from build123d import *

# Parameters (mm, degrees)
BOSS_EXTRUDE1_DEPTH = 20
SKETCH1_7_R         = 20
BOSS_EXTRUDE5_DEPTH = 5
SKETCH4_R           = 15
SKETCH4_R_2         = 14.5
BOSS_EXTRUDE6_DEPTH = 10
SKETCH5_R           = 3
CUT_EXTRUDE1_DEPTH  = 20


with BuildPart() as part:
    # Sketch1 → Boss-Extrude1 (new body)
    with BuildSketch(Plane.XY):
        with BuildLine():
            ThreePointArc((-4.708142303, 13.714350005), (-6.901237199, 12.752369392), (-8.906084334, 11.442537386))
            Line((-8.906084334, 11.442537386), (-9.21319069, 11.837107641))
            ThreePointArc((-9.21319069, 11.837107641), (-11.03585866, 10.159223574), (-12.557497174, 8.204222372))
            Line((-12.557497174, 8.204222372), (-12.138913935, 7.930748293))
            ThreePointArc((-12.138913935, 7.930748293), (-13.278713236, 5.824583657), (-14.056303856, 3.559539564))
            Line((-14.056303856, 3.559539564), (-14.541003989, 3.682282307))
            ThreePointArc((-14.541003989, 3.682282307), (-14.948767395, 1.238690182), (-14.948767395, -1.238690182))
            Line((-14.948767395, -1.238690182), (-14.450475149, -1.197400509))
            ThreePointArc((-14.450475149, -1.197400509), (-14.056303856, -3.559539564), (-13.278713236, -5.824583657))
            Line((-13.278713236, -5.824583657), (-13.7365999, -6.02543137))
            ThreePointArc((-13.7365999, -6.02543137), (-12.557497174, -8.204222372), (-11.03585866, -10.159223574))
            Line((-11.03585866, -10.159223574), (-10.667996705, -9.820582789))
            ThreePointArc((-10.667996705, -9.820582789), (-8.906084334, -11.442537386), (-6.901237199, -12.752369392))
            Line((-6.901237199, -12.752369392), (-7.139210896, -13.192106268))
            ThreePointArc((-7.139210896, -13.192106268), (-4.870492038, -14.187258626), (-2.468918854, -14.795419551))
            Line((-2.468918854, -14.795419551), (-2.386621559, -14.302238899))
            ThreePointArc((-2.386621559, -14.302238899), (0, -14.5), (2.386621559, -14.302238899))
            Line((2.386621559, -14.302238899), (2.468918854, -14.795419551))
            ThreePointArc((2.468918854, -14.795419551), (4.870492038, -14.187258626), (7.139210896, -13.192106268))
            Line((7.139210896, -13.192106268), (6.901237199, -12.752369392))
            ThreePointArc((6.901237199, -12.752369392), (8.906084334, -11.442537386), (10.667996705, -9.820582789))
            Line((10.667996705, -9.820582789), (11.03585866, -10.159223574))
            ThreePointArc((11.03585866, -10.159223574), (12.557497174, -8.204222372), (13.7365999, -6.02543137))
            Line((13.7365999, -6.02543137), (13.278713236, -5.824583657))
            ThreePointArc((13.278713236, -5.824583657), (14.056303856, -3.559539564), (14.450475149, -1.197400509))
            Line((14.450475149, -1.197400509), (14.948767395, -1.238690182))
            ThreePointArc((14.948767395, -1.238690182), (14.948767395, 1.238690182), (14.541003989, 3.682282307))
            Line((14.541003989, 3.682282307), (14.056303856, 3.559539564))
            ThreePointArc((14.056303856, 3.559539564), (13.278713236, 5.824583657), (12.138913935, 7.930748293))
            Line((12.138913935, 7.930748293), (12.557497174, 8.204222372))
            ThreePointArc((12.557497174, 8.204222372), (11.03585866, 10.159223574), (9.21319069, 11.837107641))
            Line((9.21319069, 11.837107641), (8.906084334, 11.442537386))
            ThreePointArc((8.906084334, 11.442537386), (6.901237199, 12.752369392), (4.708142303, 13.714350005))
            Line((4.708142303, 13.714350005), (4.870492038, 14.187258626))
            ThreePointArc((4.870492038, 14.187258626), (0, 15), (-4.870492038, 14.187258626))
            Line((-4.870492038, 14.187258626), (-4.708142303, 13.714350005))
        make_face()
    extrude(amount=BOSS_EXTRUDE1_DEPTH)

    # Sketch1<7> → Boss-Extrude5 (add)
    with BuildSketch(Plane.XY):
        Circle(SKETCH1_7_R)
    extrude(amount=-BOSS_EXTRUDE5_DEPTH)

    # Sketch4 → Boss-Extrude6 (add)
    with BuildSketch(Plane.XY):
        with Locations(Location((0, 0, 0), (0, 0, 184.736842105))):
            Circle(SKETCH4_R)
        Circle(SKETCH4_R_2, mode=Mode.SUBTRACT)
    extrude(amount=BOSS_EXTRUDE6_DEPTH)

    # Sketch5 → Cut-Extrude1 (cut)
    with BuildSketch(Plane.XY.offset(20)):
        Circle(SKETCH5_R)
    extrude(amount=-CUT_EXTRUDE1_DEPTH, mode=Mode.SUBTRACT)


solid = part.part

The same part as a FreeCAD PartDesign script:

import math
import FreeCAD as App
import Part
import Sketcher
from FreeCAD import Vector
Q = App.Units.Quantity

doc = App.newDocument("Part")
body = doc.addObject("PartDesign::Body", "Body")

# Sketch on XY plane
sketch1 = body.newObject("Sketcher::SketchObject", "Sketch")
sketch1.AttachmentSupport = (doc.getObject("XY_Plane"), [""])
sketch1.MapMode = "FlatFace"
sketch1.addGeometry(Part.ArcOfCircle(Part.Circle(Vector(0, 0, 0), Vector(0, 0, 1), 14.5), math.radians(108.95), math.radians(127.89)), False)
sketch1.addGeometry(Part.LineSegment(Vector(-8.91, 11.44, 0), Vector(-9.21, 11.84, 0)), False)
sketch1.addGeometry(Part.ArcOfCircle(Part.Circle(Vector(0, 0, 0), Vector(0, 0, 1), 15), math.radians(127.89), math.radians(146.84)), False)
sketch1.addGeometry(Part.LineSegment(Vector(-12.56, 8.2, 0), Vector(-12.14, 7.93, 0)), False)
sketch1.addGeometry(Part.ArcOfCircle(Part.Circle(Vector(0, 0, 0), Vector(0, 0, 1), 14.5), math.radians(146.84), math.radians(165.79)), False)
sketch1.addGeometry(Part.LineSegment(Vector(-14.06, 3.56, 0), Vector(-14.54, 3.68, 0)), False)
sketch1.addGeometry(Part.ArcOfCircle(Part.Circle(Vector(0, 0, 0), Vector(0, 0, 1), 15), math.radians(165.79), math.radians(184.74)), False)
sketch1.addGeometry(Part.LineSegment(Vector(-14.95, -1.24, 0), Vector(-14.45, -1.2, 0)), False)
sketch1.addGeometry(Part.ArcOfCircle(Part.Circle(Vector(0, 0, 0), Vector(0, 0, 1), 14.5), math.radians(-175.26), math.radians(-156.32)), False)
sketch1.addGeometry(Part.LineSegment(Vector(-13.28, -5.82, 0), Vector(-13.74, -6.03, 0)), False)
sketch1.addGeometry(Part.ArcOfCircle(Part.Circle(Vector(0, 0, 0), Vector(0, 0, 1), 15), math.radians(-156.32), math.radians(-137.37)), False)
sketch1.addGeometry(Part.LineSegment(Vector(-11.04, -10.16, 0), Vector(-10.67, -9.82, 0)), False)
sketch1.addGeometry(Part.ArcOfCircle(Part.Circle(Vector(0, 0, 0), Vector(0, 0, 1), 14.5), math.radians(-137.37), math.radians(-118.42)), False)
sketch1.addGeometry(Part.LineSegment(Vector(-6.9, -12.75, 0), Vector(-7.14, -13.19, 0)), False)
sketch1.addGeometry(Part.ArcOfCircle(Part.Circle(Vector(0, 0, 0), Vector(0, 0, 1), 15), math.radians(-118.42), math.radians(-99.47)), False)
sketch1.addGeometry(Part.LineSegment(Vector(-2.47, -14.8, 0), Vector(-2.39, -14.3, 0)), False)
sketch1.addGeometry(Part.ArcOfCircle(Part.Circle(Vector(0, 0, 0), Vector(0, 0, 1), 14.5), math.radians(-99.47), math.radians(-80.53)), False)
sketch1.addGeometry(Part.LineSegment(Vector(2.39, -14.3, 0), Vector(2.47, -14.8, 0)), False)
sketch1.addGeometry(Part.ArcOfCircle(Part.Circle(Vector(0, 0, 0), Vector(0, 0, 1), 15), math.radians(-80.53), math.radians(-61.58)), False)
sketch1.addGeometry(Part.LineSegment(Vector(7.14, -13.19, 0), Vector(6.9, -12.75, 0)), False)
sketch1.addGeometry(Part.ArcOfCircle(Part.Circle(Vector(0, 0, 0), Vector(0, 0, 1), 14.5), math.radians(-61.58), math.radians(-42.63)), False)
sketch1.addGeometry(Part.LineSegment(Vector(10.67, -9.82, 0), Vector(11.04, -10.16, 0)), False)
sketch1.addGeometry(Part.ArcOfCircle(Part.Circle(Vector(0, 0, 0), Vector(0, 0, 1), 15), math.radians(-42.63), math.radians(-23.68)), False)
sketch1.addGeometry(Part.LineSegment(Vector(13.74, -6.03, 0), Vector(13.28, -5.82, 0)), False)
sketch1.addGeometry(Part.ArcOfCircle(Part.Circle(Vector(0, 0, 0), Vector(0, 0, 1), 14.5), math.radians(-23.68), math.radians(-4.74)), False)
sketch1.addGeometry(Part.LineSegment(Vector(14.45, -1.2, 0), Vector(14.95, -1.24, 0)), False)
sketch1.addGeometry(Part.ArcOfCircle(Part.Circle(Vector(0, 0, 0), Vector(0, 0, 1), 15), math.radians(-4.74), math.radians(14.21)), False)
sketch1.addGeometry(Part.LineSegment(Vector(14.54, 3.68, 0), Vector(14.06, 3.56, 0)), False)
sketch1.addGeometry(Part.ArcOfCircle(Part.Circle(Vector(0, 0, 0), Vector(0, 0, 1), 14.5), math.radians(14.21), math.radians(33.16)), False)
sketch1.addGeometry(Part.LineSegment(Vector(12.14, 7.93, 0), Vector(12.56, 8.2, 0)), False)
sketch1.addGeometry(Part.ArcOfCircle(Part.Circle(Vector(0, 0, 0), Vector(0, 0, 1), 15), math.radians(33.16), math.radians(52.11)), False)
sketch1.addGeometry(Part.LineSegment(Vector(9.21, 11.84, 0), Vector(8.91, 11.44, 0)), False)
sketch1.addGeometry(Part.ArcOfCircle(Part.Circle(Vector(0, 0, 0), Vector(0, 0, 1), 14.5), math.radians(52.11), math.radians(71.05)), False)
sketch1.addGeometry(Part.LineSegment(Vector(4.71, 13.71, 0), Vector(4.87, 14.19, 0)), False)
sketch1.addGeometry(Part.ArcOfCircle(Part.Circle(Vector(0, 0, 0), Vector(0, 0, 1), 15), math.radians(71), math.radians(109)), False)
sketch1.addGeometry(Part.LineSegment(Vector(-4.87, 14.19, 0), Vector(-4.71, 13.71, 0)), False)
sketch1.addConstraint(Sketcher.Constraint("Coincident", 0, 2, 1, 1))
sketch1.addConstraint(Sketcher.Constraint("Coincident", 1, 2, 2, 1))
sketch1.addConstraint(Sketcher.Constraint("Coincident", 2, 2, 3, 1))
sketch1.addConstraint(Sketcher.Constraint("Coincident", 3, 2, 4, 1))
sketch1.addConstraint(Sketcher.Constraint("Coincident", 4, 2, 5, 1))
sketch1.addConstraint(Sketcher.Constraint("Coincident", 5, 2, 6, 1))
sketch1.addConstraint(Sketcher.Constraint("Coincident", 6, 2, 7, 1))
sketch1.addConstraint(Sketcher.Constraint("Coincident", 7, 2, 8, 1))
sketch1.addConstraint(Sketcher.Constraint("Coincident", 8, 2, 9, 1))
sketch1.addConstraint(Sketcher.Constraint("Coincident", 9, 2, 10, 1))
sketch1.addConstraint(Sketcher.Constraint("Coincident", 10, 2, 11, 1))
sketch1.addConstraint(Sketcher.Constraint("Coincident", 11, 2, 12, 1))
sketch1.addConstraint(Sketcher.Constraint("Coincident", 12, 2, 13, 1))
sketch1.addConstraint(Sketcher.Constraint("Coincident", 13, 2, 14, 1))
sketch1.addConstraint(Sketcher.Constraint("Coincident", 14, 2, 15, 1))
sketch1.addConstraint(Sketcher.Constraint("Coincident", 15, 2, 16, 1))
sketch1.addConstraint(Sketcher.Constraint("Coincident", 16, 2, 17, 1))
sketch1.addConstraint(Sketcher.Constraint("Coincident", 17, 2, 18, 1))
sketch1.addConstraint(Sketcher.Constraint("Coincident", 18, 2, 19, 1))
sketch1.addConstraint(Sketcher.Constraint("Coincident", 19, 2, 20, 1))
sketch1.addConstraint(Sketcher.Constraint("Coincident", 20, 2, 21, 1))
sketch1.addConstraint(Sketcher.Constraint("Coincident", 21, 2, 22, 1))
sketch1.addConstraint(Sketcher.Constraint("Coincident", 22, 2, 23, 1))
sketch1.addConstraint(Sketcher.Constraint("Coincident", 23, 2, 24, 1))
sketch1.addConstraint(Sketcher.Constraint("Coincident", 24, 2, 25, 1))
sketch1.addConstraint(Sketcher.Constraint("Coincident", 25, 2, 26, 1))
sketch1.addConstraint(Sketcher.Constraint("Coincident", 26, 2, 27, 1))
sketch1.addConstraint(Sketcher.Constraint("Coincident", 27, 2, 28, 1))
sketch1.addConstraint(Sketcher.Constraint("Coincident", 28, 2, 29, 1))
sketch1.addConstraint(Sketcher.Constraint("Coincident", 29, 2, 30, 1))
sketch1.addConstraint(Sketcher.Constraint("Coincident", 30, 2, 31, 1))
sketch1.addConstraint(Sketcher.Constraint("Coincident", 31, 2, 32, 1))
sketch1.addConstraint(Sketcher.Constraint("Coincident", 32, 2, 33, 1))
sketch1.addConstraint(Sketcher.Constraint("Coincident", 33, 2, 34, 1))
sketch1.addConstraint(Sketcher.Constraint("Coincident", 34, 2, 35, 1))
sketch1.addConstraint(Sketcher.Constraint("Coincident", 35, 2, 0, 1))
sketch1.addConstraint(Sketcher.Constraint("Coincident", 0, 3, -1, 1))
sketch1.addConstraint(Sketcher.Constraint("Coincident", 2, 3, -1, 1))
sketch1.addConstraint(Sketcher.Constraint("Coincident", 4, 3, -1, 1))
sketch1.addConstraint(Sketcher.Constraint("Coincident", 6, 3, -1, 1))
sketch1.addConstraint(Sketcher.Constraint("Coincident", 8, 3, -1, 1))
sketch1.addConstraint(Sketcher.Constraint("Coincident", 10, 3, -1, 1))
sketch1.addConstraint(Sketcher.Constraint("Coincident", 12, 3, -1, 1))
sketch1.addConstraint(Sketcher.Constraint("Coincident", 14, 3, -1, 1))
sketch1.addConstraint(Sketcher.Constraint("Coincident", 16, 3, -1, 1))
sketch1.addConstraint(Sketcher.Constraint("Coincident", 18, 3, -1, 1))
sketch1.addConstraint(Sketcher.Constraint("Coincident", 20, 3, -1, 1))
sketch1.addConstraint(Sketcher.Constraint("Coincident", 22, 3, -1, 1))
sketch1.addConstraint(Sketcher.Constraint("Coincident", 24, 3, -1, 1))
sketch1.addConstraint(Sketcher.Constraint("Coincident", 26, 3, -1, 1))
sketch1.addConstraint(Sketcher.Constraint("Coincident", 28, 3, -1, 1))
sketch1.addConstraint(Sketcher.Constraint("Coincident", 30, 3, -1, 1))
sketch1.addConstraint(Sketcher.Constraint("Coincident", 32, 3, -1, 1))
sketch1.addConstraint(Sketcher.Constraint("Coincident", 34, 3, -1, 1))
sketch1.addConstraint(Sketcher.Constraint("Equal", 0, 4))
sketch1.addConstraint(Sketcher.Constraint("Equal", 2, 6))
sketch1.addConstraint(Sketcher.Constraint("Equal", 4, 8))
sketch1.addConstraint(Sketcher.Constraint("Equal", 6, 10))
sketch1.addConstraint(Sketcher.Constraint("Equal", 8, 12))
sketch1.addConstraint(Sketcher.Constraint("Equal", 10, 14))
sketch1.addConstraint(Sketcher.Constraint("Equal", 12, 16))
sketch1.addConstraint(Sketcher.Constraint("Equal", 14, 18))
sketch1.addConstraint(Sketcher.Constraint("Equal", 16, 20))
sketch1.addConstraint(Sketcher.Constraint("Equal", 18, 22))
sketch1.addConstraint(Sketcher.Constraint("Equal", 20, 24))
sketch1.addConstraint(Sketcher.Constraint("Equal", 22, 26))
sketch1.addConstraint(Sketcher.Constraint("Equal", 24, 28))
sketch1.addConstraint(Sketcher.Constraint("Equal", 26, 30))
sketch1.addConstraint(Sketcher.Constraint("Equal", 28, 32))
sketch1.addConstraint(Sketcher.Constraint("Equal", 30, 34))
sketch1.addConstraint(Sketcher.Constraint("Horizontal", 15, 2, 16, 2))
sketch1.addConstraint(Sketcher.Constraint("Horizontal", 14, 2, 17, 2))
sketch1.addConstraint(Sketcher.Constraint("Horizontal", 13, 2, 18, 2))
sketch1.addConstraint(Sketcher.Constraint("Horizontal", 12, 2, 19, 2))
sketch1.addConstraint(Sketcher.Constraint("Horizontal", 11, 2, 20, 2))
sketch1.addConstraint(Sketcher.Constraint("Horizontal", 10, 2, 21, 2))
sketch1.addConstraint(Sketcher.Constraint("Horizontal", 9, 2, 22, 2))
sketch1.addConstraint(Sketcher.Constraint("Horizontal", 8, 2, 23, 2))
sketch1.addConstraint(Sketcher.Constraint("Horizontal", 7, 2, 24, 2))
sketch1.addConstraint(Sketcher.Constraint("Horizontal", 6, 2, 25, 2))
sketch1.addConstraint(Sketcher.Constraint("Horizontal", 5, 2, 26, 2))
sketch1.addConstraint(Sketcher.Constraint("Horizontal", 4, 2, 27, 2))
sketch1.addConstraint(Sketcher.Constraint("Horizontal", 3, 2, 28, 2))
sketch1.addConstraint(Sketcher.Constraint("Horizontal", 2, 2, 29, 2))
sketch1.addConstraint(Sketcher.Constraint("Horizontal", 1, 2, 30, 2))
sketch1.addConstraint(Sketcher.Constraint("Horizontal", 0, 2, 31, 2))
sketch1.addConstraint(Sketcher.Constraint("Horizontal", 33, 2, 34, 2))
sketch1.addConstraint(Sketcher.Constraint("Horizontal", 32, 2, 35, 2))
sketch1.addConstraint(Sketcher.Constraint("Radius", 2, Q("15 mm")))
sketch1.addConstraint(Sketcher.Constraint("Radius", 0, Q("14.5 mm")))
sketch1.addConstraint(Sketcher.Constraint("DistanceY", 11, 2, 8, 2, Q("3.995999 mm")))
sketch1.addConstraint(Sketcher.Constraint("DistanceY", 7, 2, -1, 1, Q("1.197401 mm")))
sketch1.addConstraint(Sketcher.Constraint("DistanceX", 9, 2, -1, 1, Q("13.7366 mm")))
sketch1.addConstraint(Sketcher.Constraint("DistanceX", 5, 2, 4, 2, Q("0.4847 mm")))
sketch1.addConstraint(Sketcher.Constraint("DistanceX", 8, 2, 3, 2, Q("1.139799 mm")))
sketch1.addConstraint(Sketcher.Constraint("DistanceY", 28, 2, 32, 2, Q("5.783602 mm")))
sketch1.addConstraint(Sketcher.Constraint("DistanceX", 33, 2, 30, 2, Q("4.342699 mm")))
sketch1.addConstraint(Sketcher.Constraint("DistanceX", 1, 2, -1, 1, Q("9.213191 mm")))
sketch1.addConstraint(Sketcher.Constraint("DistanceY", -1, 1, 3, 2, Q("7.930748 mm")))
sketch1.addConstraint(Sketcher.Constraint("DistanceY", -1, 1, 4, 2, Q("3.55954 mm")))
sketch1.addConstraint(Sketcher.Constraint("DistanceY", 6, 2, -1, 1, Q("1.23869 mm")))
sketch1.addConstraint(Sketcher.Constraint("DistanceX", 10, 2, -1, 1, Q("11.035859 mm")))
sketch1.addConstraint(Sketcher.Constraint("DistanceY", 12, 2, -1, 1, Q("12.752369 mm")))
sketch1.addConstraint(Sketcher.Constraint("DistanceX", 13, 2, -1, 1, Q("7.139211 mm")))
sketch1.addConstraint(Sketcher.Constraint("DistanceX", 14, 2, -1, 1, Q("2.468919 mm")))
sketch1.addConstraint(Sketcher.Constraint("DistanceX", 15, 2, -1, 1, Q("2.386622 mm")))
sketch1.addConstraint(Sketcher.Constraint("DistanceY", 0, 2, 1, 2, Q("0.39457 mm")))
sketch1.addConstraint(Sketcher.Constraint("DistanceY", 5, 2, 2, 2, Q("4.52194 mm")))
pad1 = body.newObject("PartDesign::Pad", "Pad")
pad1.Profile = sketch1
pad1.Length = 20

# Sketch on XY plane
sketch2 = body.newObject("Sketcher::SketchObject", "Sketch001")
sketch2.AttachmentSupport = (doc.getObject("XY_Plane"), [""])
sketch2.MapMode = "FlatFace"
sketch2.addGeometry(Part.Circle(Vector(0, 0, 0), Vector(0, 0, 1), 20), False)
sketch2.addConstraint(Sketcher.Constraint("Coincident", 0, 3, -1, 1))
sketch2.addConstraint(Sketcher.Constraint("Diameter", 0, Q("40 mm")))
pad2 = body.newObject("PartDesign::Pad", "Pad001")
pad2.Profile = sketch2
pad2.Length = 5
pad2.Reversed = True

# Sketch on XY plane
sketch3 = body.newObject("Sketcher::SketchObject", "Sketch002")
sketch3.AttachmentSupport = (doc.getObject("XY_Plane"), [""])
sketch3.MapMode = "FlatFace"
sketch3.addGeometry(Part.Circle(Vector(0, 0, 0), Vector(0, 0, 1), 15), False)
sketch3.addGeometry(Part.Circle(Vector(0, 0, 0), Vector(0, 0, 1), 14), False)
sketch3.addConstraint(Sketcher.Constraint("Coincident", 0, 3, -1, 1))
sketch3.addConstraint(Sketcher.Constraint("Coincident", 1, 3, -1, 1))
sketch3.addConstraint(Sketcher.Constraint("Diameter", 0, Q("30 mm")))
sketch3.addConstraint(Sketcher.Constraint("Diameter", 1, Q("29 mm")))
pad3 = body.newObject("PartDesign::Pad", "Pad002")
pad3.Profile = sketch3
pad3.Length = 10

# Sketch on XY plane
sketch4 = body.newObject("Sketcher::SketchObject", "Sketch003")
sketch4.AttachmentSupport = (doc.getObject("XY_Plane"), [""])
sketch4.MapMode = "FlatFace"
sketch4.AttachmentOffset = App.Placement(Vector(0, 0, 20), App.Rotation())
sketch4.addGeometry(Part.Circle(Vector(0, 0, 0), Vector(0, 0, 1), 3), False)
sketch4.addConstraint(Sketcher.Constraint("Coincident", 0, 3, -1, 1))
sketch4.addConstraint(Sketcher.Constraint("Diameter", 0, Q("6 mm")))
pocket1 = body.newObject("PartDesign::Pocket", "Pocket")
pocket1.Profile = sketch4
pocket1.Length = 20

doc.recompute()
